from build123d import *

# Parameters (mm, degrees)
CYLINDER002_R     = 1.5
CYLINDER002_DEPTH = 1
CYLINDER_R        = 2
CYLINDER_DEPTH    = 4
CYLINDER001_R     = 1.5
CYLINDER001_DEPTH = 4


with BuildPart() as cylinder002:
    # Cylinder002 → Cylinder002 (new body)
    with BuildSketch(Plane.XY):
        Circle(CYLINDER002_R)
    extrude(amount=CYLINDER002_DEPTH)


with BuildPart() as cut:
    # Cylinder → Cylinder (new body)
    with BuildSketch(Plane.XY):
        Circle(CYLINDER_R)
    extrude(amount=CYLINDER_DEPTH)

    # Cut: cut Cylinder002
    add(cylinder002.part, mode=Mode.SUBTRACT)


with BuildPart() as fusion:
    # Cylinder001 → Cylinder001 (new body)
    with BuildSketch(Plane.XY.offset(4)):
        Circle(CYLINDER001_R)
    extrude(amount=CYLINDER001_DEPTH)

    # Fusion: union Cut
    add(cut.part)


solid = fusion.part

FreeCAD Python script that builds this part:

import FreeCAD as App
import Part
import Sketcher

doc = App.newDocument("Part")
body = doc.addObject("PartDesign::Body", "Body")

# Sketch on XY plane
sketch1 = body.newObject("Sketcher::SketchObject", "Sketch")
sketch1.AttachmentSupport = (doc.getObject("XY_Plane"), [""])
sketch1.MapMode = "FlatFace"
sketch1.addGeometry(Part.Circle(App.Vector(0, 0, 0), App.Vector(0, 0, 1), 1.5), False)
sketch1.addConstraint([
    Sketcher.Constraint("Coincident", 0, 3, -1, 1),
    Sketcher.Constraint("Diameter", 0, 3.0),
])
pad1 = body.newObject("PartDesign::Pad", "Pad")
pad1.Profile = sketch1
pad1.Length = 1
body2 = doc.addObject("PartDesign::Body", "Body001")

# Sketch on XY plane
sketch2 = body2.newObject("Sketcher::SketchObject", "Sketch001")
sketch2.AttachmentSupport = (doc.getObject("XY_Plane001"), [""])
sketch2.MapMode = "FlatFace"
sketch2.addGeometry(Part.Circle(App.Vector(0, 0, 0), App.Vector(0, 0, 1), 2), False)
sketch2.addConstraint([
    Sketcher.Constraint("Coincident", 0, 3, -1, 1),
    Sketcher.Constraint("Diameter", 0, 4.0),
])
pad2 = body2.newObject("PartDesign::Pad", "Pad001")
pad2.Profile = sketch2
pad2.Length = 4
doc.recompute()

boolean = body2.newObject("PartDesign::Boolean", "Boolean")
boolean.Type = "Cut"
boolean.addObjects([body])
body3 = doc.addObject("PartDesign::Body", "Body002")

# Sketch on XY plane
sketch3 = body3.newObject("Sketcher::SketchObject", "Sketch002")
sketch3.AttachmentSupport = (doc.getObject("XY_Plane002"), [""])
sketch3.MapMode = "FlatFace"
sketch3.AttachmentOffset = App.Placement(App.Vector(0, 0, 4), App.Rotation())
sketch3.addGeometry(Part.Circle(App.Vector(0, 0, 0), App.Vector(0, 0, 1), 1.5), False)
sketch3.addConstraint([
    Sketcher.Constraint("Coincident", 0, 3, -1, 1),
    Sketcher.Constraint("Diameter", 0, 3.0),
])
pad3 = body3.newObject("PartDesign::Pad", "Pad002")
pad3.Profile = sketch3
pad3.Length = 4
doc.recompute()

boolean2 = body3.newObject("PartDesign::Boolean", "Boolean001")
boolean2.Type = "Fuse"
boolean2.addObjects([body2])

doc.recompute()
